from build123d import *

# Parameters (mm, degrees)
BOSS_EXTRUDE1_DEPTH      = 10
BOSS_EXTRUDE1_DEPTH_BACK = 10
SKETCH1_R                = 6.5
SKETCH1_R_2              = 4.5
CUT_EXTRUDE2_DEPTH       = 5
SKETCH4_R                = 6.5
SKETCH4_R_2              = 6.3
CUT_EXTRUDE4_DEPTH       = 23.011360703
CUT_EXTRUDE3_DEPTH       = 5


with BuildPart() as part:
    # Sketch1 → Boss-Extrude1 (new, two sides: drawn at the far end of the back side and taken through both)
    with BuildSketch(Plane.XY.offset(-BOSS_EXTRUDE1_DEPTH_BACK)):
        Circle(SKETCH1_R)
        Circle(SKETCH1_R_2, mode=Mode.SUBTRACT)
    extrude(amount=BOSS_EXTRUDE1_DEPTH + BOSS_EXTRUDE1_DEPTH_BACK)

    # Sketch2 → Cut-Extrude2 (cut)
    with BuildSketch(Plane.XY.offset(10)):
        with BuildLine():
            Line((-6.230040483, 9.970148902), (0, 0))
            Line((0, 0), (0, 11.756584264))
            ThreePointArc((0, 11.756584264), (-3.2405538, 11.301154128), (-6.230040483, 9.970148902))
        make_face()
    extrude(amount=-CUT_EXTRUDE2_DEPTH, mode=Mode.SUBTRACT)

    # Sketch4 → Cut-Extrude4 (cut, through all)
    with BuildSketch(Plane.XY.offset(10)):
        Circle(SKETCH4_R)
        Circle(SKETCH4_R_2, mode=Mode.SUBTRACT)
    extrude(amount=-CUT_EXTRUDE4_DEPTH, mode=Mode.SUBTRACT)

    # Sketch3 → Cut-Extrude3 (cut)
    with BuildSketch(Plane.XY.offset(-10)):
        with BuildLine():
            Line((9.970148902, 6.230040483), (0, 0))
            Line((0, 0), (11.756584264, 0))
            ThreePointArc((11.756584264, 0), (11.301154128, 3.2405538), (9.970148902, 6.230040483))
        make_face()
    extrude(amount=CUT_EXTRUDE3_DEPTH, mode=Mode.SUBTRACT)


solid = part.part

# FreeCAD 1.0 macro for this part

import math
import FreeCAD as App
import Part
import Sketcher

V = App.Vector
Q = App.Units.Quantity

doc = App.newDocument("Part")
params = doc.addObject("Spreadsheet::Sheet", "Params")
for row, (alias, value) in enumerate([
    ("sketch1_diameter", "13 mm"),
    ("sketch1_diameter2", "9 mm"),
    ("pad1_length", "10 mm"),
    ("pad1_length2", "10 mm"),
    ("pocket1_length", "5 mm"),
    ("sketch3_diameter", "13 mm"),
    ("sketch3_diameter2", "12.6 mm"),
    ("pocket3_length", "5 mm"),
], start=1):
    params.set(f"A{row}", alias)
    params.set(f"B{row}", "=" + value)
    params.setAlias(f"B{row}", alias)

body = doc.addObject("PartDesign::Body", "Body")

sketch1 = body.newObject("Sketcher::SketchObject", "Sketch")
sketch1.AttachmentSupport = (doc.getObject("XY_Plane"), [""])
sketch1.MapMode = "FlatFace"
sketch1.addGeometry([
    Part.Circle(V(0, 0, 0), V(0, 0, 1), 6.5),
    Part.Circle(V(0, 0, 0), V(0, 0, 1), 4.5),
], False)
sketch1.addConstraint([
    Sketcher.Constraint("Coincident", 0, 3, -1, 1),
    Sketcher.Constraint("Coincident", 1, 3, -1, 1),
    Sketcher.Constraint("Diameter", 0, Q("13 mm")),
    Sketcher.Constraint("Diameter", 1, Q("9 mm")),
])
sketch1.setExpression("Constraints[2]", "Params.sketch1_diameter")
sketch1.setExpression("Constraints[3]", "Params.sketch1_diameter2")
pad1 = body.newObject("PartDesign::Pad", "Pad")
pad1.Profile = sketch1
pad1.Type = "TwoLengths"
pad1.setExpression("Length", "Params.pad1_length")
pad1.setExpression("Length2", "Params.pad1_length2")

sketch2 = body.newObject("Sketcher::SketchObject", "Sketch001")
sketch2.AttachmentSupport = (doc.getObject("XY_Plane"), [""])
sketch2.MapMode = "FlatFace"
sketch2.AttachmentOffset = App.Placement(V(0, 0, 10), App.Rotation())
sketch2.addGeometry([
    Part.LineSegment(V(-6, 10, 0), V(0, 0, 0)),
    Part.LineSegment(V(0, 0, 0), V(0, 12, 0)),
    Part.ArcOfCircle(Part.Circle(V(0, 0, 0), V(0, 0, 1), 12), math.radians(90), math.radians(122)),
], False)
sketch2.addConstraint([
    Sketcher.Constraint("Coincident", 0, 2, 1, 1),
    Sketcher.Constraint("Coincident", 1, 2, 2, 1),
    Sketcher.Constraint("Coincident", 2, 2, 0, 1),
    Sketcher.Constraint("Vertical", 1),
    Sketcher.Constraint("Coincident", 2, 3, -1, 1),
    Sketcher.Constraint("Coincident", 0, 2, -1, 1),
    Sketcher.Constraint("Angle", 0, Q("-58 deg")),
    Sketcher.Constraint("Radius", 2, Q("11.756584 mm")),
])
pocket1 = body.newObject("PartDesign::Pocket", "Pocket")
pocket1.Profile = sketch2
pocket1.setExpression("Length", "Params.pocket1_length")

sketch3 = body.newObject("Sketcher::SketchObject", "Sketch002")
sketch3.AttachmentSupport = (doc.getObject("XY_Plane"), [""])
sketch3.MapMode = "FlatFace"
sketch3.AttachmentOffset = App.Placement(V(0, 0, 10), App.Rotation())
sketch3.addGeometry([
    Part.Circle(V(0, 0, 0), V(0, 0, 1), 6),
    Part.Circle(V(0, 0, 0), V(0, 0, 1), 6),
], False)
sketch3.addConstraint([
    Sketcher.Constraint("Coincident", 0, 3, -1, 1),
    Sketcher.Constraint("Coincident", 1, 3, -1, 1),
    Sketcher.Constraint("Diameter", 0, Q("13 mm")),
    Sketcher.Constraint("Diameter", 1, Q("12.6 mm")),
])
sketch3.setExpression("Constraints[2]", "Params.sketch3_diameter")
sketch3.setExpression("Constraints[3]", "Params.sketch3_diameter2")
pocket2 = body.newObject("PartDesign::Pocket", "Pocket001")
pocket2.Profile = sketch3
pocket2.Type = "ThroughAll"

sketch4 = body.newObject("Sketcher::SketchObject", "Sketch003")
sketch4.AttachmentSupport = (doc.getObject("XY_Plane"), [""])
sketch4.MapMode = "FlatFace"
sketch4.AttachmentOffset = App.Placement(V(0, 0, -10), App.Rotation())
sketch4.addGeometry([
    Part.LineSegment(V(10, 6, 0), V(0, 0, 0)),
    Part.LineSegment(V(0, 0, 0), V(12, 0, 0)),
    Part.ArcOfCircle(Part.Circle(V(0, 0, 0), V(0, 0, 1), 12), math.radians(0), math.radians(32)),
], False)
sketch4.addConstraint([
    Sketcher.Constraint("Coincident", 0, 2, 1, 1),
    Sketcher.Constraint("Coincident", 1, 2, 2, 1),
    Sketcher.Constraint("Coincident", 2, 2, 0, 1),
    Sketcher.Constraint("Horizontal", 1),
    Sketcher.Constraint("Coincident", 2, 3, -1, 1),
    Sketcher.Constraint("Coincident", 0, 2, -1, 1),
    Sketcher.Constraint("Angle", 0, Q("-148 deg")),
    Sketcher.Constraint("Radius", 2, Q("11.756584 mm")),
])
pocket3 = body.newObject("PartDesign::Pocket", "Pocket002")
pocket3.Profile = sketch4
pocket3.setExpression("Length", "Params.pocket3_length")
pocket3.Reversed = True

doc.recompute()
